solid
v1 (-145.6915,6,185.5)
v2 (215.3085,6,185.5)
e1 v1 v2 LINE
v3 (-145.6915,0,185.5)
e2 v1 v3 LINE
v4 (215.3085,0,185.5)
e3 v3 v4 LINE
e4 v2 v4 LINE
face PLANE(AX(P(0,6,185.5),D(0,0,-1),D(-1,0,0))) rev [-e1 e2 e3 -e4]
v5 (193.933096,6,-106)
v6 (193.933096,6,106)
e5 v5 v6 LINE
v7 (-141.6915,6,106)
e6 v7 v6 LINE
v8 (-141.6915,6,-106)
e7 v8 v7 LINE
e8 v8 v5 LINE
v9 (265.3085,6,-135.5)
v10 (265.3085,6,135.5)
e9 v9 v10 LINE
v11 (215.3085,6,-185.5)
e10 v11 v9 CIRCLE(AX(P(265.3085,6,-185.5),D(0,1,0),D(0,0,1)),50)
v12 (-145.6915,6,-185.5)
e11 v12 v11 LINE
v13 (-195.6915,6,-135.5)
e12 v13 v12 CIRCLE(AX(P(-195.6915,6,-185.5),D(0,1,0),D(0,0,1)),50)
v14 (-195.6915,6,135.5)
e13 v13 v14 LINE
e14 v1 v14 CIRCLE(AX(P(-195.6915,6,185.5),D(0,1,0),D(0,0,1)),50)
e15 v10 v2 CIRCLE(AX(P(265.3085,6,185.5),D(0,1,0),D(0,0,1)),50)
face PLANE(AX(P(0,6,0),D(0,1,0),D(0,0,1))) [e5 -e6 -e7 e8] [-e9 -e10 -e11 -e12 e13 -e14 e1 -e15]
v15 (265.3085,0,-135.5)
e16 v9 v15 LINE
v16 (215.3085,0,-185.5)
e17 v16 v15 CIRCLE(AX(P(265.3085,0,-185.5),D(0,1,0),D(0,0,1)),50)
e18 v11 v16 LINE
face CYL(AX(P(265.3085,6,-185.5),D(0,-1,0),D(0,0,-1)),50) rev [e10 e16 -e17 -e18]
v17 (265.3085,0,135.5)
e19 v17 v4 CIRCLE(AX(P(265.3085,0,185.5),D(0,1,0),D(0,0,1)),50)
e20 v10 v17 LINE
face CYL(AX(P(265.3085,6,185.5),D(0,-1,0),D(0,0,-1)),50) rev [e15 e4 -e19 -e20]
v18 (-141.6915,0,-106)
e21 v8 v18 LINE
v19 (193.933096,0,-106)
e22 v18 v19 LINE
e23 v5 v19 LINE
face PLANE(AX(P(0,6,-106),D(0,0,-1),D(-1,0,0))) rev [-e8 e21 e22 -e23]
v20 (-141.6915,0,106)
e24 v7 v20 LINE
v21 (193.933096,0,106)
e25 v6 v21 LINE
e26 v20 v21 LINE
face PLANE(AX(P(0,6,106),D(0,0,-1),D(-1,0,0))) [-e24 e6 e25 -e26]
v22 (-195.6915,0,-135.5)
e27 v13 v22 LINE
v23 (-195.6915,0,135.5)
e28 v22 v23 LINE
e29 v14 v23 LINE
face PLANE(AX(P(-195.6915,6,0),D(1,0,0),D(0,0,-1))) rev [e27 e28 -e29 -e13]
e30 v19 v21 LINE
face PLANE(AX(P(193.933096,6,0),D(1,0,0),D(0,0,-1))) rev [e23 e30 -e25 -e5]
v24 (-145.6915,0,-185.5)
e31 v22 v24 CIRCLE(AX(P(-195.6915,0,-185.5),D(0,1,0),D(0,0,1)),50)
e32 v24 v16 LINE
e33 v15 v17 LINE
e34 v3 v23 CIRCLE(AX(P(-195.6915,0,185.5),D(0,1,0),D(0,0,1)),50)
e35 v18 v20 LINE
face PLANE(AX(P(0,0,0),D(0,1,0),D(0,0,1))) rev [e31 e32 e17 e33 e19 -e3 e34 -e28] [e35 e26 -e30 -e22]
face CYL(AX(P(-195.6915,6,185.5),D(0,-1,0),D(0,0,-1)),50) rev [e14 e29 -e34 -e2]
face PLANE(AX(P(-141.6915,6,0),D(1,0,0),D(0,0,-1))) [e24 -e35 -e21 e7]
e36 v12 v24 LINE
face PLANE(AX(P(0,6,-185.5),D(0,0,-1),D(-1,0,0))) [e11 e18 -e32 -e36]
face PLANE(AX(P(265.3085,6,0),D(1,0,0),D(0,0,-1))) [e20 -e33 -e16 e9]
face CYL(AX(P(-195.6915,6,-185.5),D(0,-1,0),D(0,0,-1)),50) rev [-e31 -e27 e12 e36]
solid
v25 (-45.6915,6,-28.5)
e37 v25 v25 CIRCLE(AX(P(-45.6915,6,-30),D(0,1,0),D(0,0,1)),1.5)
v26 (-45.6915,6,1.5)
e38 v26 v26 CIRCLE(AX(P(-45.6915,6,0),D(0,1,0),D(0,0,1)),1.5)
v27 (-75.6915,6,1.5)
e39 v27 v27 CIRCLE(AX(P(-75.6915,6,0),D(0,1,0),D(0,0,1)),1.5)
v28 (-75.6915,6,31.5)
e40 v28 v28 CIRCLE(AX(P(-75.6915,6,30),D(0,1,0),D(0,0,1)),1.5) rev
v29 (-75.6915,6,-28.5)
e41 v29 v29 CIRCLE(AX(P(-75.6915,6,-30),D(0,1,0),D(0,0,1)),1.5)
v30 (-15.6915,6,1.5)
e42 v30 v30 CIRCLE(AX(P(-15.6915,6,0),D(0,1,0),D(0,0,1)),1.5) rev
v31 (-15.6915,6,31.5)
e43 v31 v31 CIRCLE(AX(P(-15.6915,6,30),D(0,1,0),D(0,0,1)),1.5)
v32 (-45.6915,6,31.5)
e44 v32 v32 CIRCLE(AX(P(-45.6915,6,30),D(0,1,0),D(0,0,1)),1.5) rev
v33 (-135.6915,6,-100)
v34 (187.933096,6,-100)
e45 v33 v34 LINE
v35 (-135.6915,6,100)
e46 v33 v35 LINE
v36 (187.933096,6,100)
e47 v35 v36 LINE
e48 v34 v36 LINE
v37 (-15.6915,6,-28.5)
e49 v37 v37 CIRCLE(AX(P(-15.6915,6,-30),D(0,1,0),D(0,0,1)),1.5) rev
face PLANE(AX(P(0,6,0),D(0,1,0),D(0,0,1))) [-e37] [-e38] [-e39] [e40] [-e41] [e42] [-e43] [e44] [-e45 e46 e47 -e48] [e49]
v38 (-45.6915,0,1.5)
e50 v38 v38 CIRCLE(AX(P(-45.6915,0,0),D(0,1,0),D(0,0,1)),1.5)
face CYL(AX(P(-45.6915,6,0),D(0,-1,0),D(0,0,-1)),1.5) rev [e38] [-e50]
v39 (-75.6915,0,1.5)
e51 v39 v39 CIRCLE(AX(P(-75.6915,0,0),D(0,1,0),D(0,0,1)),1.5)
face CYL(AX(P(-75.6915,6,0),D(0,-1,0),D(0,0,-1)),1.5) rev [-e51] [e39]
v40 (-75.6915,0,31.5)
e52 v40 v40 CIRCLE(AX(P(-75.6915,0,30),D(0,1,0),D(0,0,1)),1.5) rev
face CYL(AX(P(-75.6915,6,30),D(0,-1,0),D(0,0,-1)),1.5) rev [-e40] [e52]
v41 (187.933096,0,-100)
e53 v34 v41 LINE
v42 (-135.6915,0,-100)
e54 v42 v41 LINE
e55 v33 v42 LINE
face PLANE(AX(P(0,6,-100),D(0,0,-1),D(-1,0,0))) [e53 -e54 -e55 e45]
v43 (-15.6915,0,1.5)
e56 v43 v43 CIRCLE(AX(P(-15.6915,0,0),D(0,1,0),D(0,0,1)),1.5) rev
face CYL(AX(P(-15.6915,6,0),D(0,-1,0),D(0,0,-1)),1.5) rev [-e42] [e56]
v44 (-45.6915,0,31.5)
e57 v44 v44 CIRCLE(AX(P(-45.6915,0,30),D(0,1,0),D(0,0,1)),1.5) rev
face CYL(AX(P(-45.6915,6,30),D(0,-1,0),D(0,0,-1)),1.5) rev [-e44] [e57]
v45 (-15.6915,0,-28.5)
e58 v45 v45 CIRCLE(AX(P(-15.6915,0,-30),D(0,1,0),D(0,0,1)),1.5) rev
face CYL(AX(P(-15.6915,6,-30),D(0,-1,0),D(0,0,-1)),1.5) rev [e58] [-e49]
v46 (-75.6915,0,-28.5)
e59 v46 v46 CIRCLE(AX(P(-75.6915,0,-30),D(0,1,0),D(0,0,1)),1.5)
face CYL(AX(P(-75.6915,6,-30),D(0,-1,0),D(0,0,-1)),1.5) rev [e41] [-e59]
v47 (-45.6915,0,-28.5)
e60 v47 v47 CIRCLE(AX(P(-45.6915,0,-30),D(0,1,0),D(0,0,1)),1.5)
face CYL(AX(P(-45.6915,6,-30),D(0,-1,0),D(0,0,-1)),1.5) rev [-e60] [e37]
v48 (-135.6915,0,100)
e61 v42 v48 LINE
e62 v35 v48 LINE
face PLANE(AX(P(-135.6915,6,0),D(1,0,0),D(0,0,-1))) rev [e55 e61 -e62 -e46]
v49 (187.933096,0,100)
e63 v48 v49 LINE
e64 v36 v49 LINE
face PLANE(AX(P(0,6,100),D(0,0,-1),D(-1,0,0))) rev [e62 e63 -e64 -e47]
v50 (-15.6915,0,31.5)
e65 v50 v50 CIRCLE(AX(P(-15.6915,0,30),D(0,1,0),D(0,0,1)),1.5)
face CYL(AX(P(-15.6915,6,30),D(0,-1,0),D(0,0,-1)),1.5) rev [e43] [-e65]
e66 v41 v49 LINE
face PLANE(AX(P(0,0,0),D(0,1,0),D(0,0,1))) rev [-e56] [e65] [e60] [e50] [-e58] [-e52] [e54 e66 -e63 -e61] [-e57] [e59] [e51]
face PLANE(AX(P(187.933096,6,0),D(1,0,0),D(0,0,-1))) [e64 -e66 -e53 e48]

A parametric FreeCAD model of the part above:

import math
import FreeCAD as App
import Part
import Sketcher


def add_polygon(sketch, points):
    """Adds a closed chain of lines whose ends are joined by coincident constraints."""
    first, n = sketch.GeometryCount, len(points)
    for a, b in zip(points, points[1:] + points[:1]):
        sketch.addGeometry(Part.LineSegment(App.Vector(*a, 0), App.Vector(*b, 0)), False)
    for i in range(n):
        sketch.addConstraint(Sketcher.Constraint("Coincident", first + i, 2, first + (i + 1) % n, 1))

doc = App.newDocument("Part")
body = doc.addObject("PartDesign::Body", "Body")

# Sketch on XZ plane
sketch1 = body.newObject("Sketcher::SketchObject", "Sketch")
sketch1.AttachmentSupport = (doc.getObject("XZ_Plane"), [""])
sketch1.MapMode = "FlatFace"
sketch1.addGeometry(Part.ArcOfCircle(Part.Circle(App.Vector(-195.6915, 185.5, 0), App.Vector(0, 0, 1), 50), math.radians(-90), math.radians(0)), False)  # 0
sketch1.addGeometry(Part.LineSegment(App.Vector(-145.6915, 185.5, 0), App.Vector(215.3085, 185.5, 0)), False)  # 1
sketch1.addGeometry(Part.ArcOfCircle(Part.Circle(App.Vector(265.3085, 185.5, 0), App.Vector(0, 0, 1), 50), math.radians(-180), math.radians(-90)), False)  # 2
sketch1.addGeometry(Part.LineSegment(App.Vector(265.3085, 135.5, 0), App.Vector(265.3085, -135.5, 0)), False)  # 3
sketch1.addGeometry(Part.ArcOfCircle(Part.Circle(App.Vector(265.3085, -185.5, 0), App.Vector(0, 0, 1), 50), math.radians(90), math.radians(180)), False)  # 4
sketch1.addGeometry(Part.LineSegment(App.Vector(215.3085, -185.5, 0), App.Vector(-145.6915, -185.5, 0)), False)  # 5
sketch1.addGeometry(Part.ArcOfCircle(Part.Circle(App.Vector(-195.6915, -185.5, 0), App.Vector(0, 0, 1), 50), math.radians(0), math.radians(90)), False)  # 6
sketch1.addGeometry(Part.LineSegment(App.Vector(-195.6915, -135.5, 0), App.Vector(-195.6915, 135.5, 0)), False)  # 7
add_polygon(sketch1, [(-141.6915, 106), (-141.6915, -106), (193.933096, -106), (193.933096, 106)])  # lines 8-11
sketch1.addConstraint([
    Sketcher.Constraint("Coincident", 0, 2, 1, 1),
    Sketcher.Constraint("Coincident", 1, 2, 2, 1),
    Sketcher.Constraint("Coincident", 2, 2, 3, 1),
    Sketcher.Constraint("Coincident", 3, 2, 4, 1),
    Sketcher.Constraint("Coincident", 4, 2, 5, 1),
    Sketcher.Constraint("Coincident", 5, 2, 6, 1),
    Sketcher.Constraint("Coincident", 6, 2, 7, 1),
    Sketcher.Constraint("Coincident", 7, 2, 0, 1),
    Sketcher.Constraint("Horizontal", 1),
    Sketcher.Constraint("Vertical", 3),
    Sketcher.Constraint("Horizontal", 5),
    Sketcher.Constraint("Vertical", 7),
    Sketcher.Constraint("Vertical", 8),
    Sketcher.Constraint("Horizontal", 9),
    Sketcher.Constraint("Vertical", 10),
    Sketcher.Constraint("Horizontal", 11),
    Sketcher.Constraint("Equal", 0, 2),
    Sketcher.Constraint("Equal", 2, 4),
    Sketcher.Constraint("Equal", 4, 6),
    Sketcher.Constraint("Symmetric", 2, 3, 4, 3, -1),
    Sketcher.Constraint("Symmetric", 0, 3, 6, 3, -1),
    Sketcher.Constraint("Horizontal", 0, 3, 2, 3),
    Sketcher.Constraint("Horizontal", 2, 3, 0, 2),
    Sketcher.Constraint("Horizontal", 6, 3, 4, 2),
    Sketcher.Constraint("Vertical", 4, 3, 2, 2),
    Sketcher.Constraint("Vertical", 0, 3, 6, 2),
    Sketcher.Constraint("Radius", 0, 50.0),
    Sketcher.Constraint("DistanceX", 1, 1, 1, 2, 361.0),
    Sketcher.Constraint("DistanceY", 3, 2, 3, 1, 271.0),
    Sketcher.Constraint("DistanceY", 8, 2, 8, 1, 212.0),
    Sketcher.Constraint("DistanceY", 8, 2, -1, 1, 106.0),
    Sketcher.Constraint("DistanceX", 6, 2, 8, 2, 54.0),
    Sketcher.Constraint("DistanceX", 0, 3, -1, 1, 195.6915),
    Sketcher.Constraint("DistanceX", 9, 1, 9, 2, 335.624595),
])
pad1 = body.newObject("PartDesign::Pad", "Pad")
pad1.Profile = sketch1
pad1.Length = 6
pad1.Reversed = True
body2 = doc.addObject("PartDesign::Body", "Body001")

# Sketch on XZ plane
sketch2 = body2.newObject("Sketcher::SketchObject", "Sketch001")
sketch2.AttachmentSupport = (doc.getObject("XZ_Plane001"), [""])
sketch2.MapMode = "FlatFace"
add_polygon(sketch2, [(-135.6915, -100), (-135.6915, 100), (187.933096, 100), (187.933096, -100)])  # lines 0-3
sketch2.addGeometry(Part.Circle(App.Vector(-75.6915, 30, 0), App.Vector(0, 0, 1), 1.5), False)  # 4
sketch2.addGeometry(Part.Circle(App.Vector(-45.6915, 30, 0), App.Vector(0, 0, 1), 1.5), False)  # 5
sketch2.addGeometry(Part.Circle(App.Vector(-15.6915, 30, 0), App.Vector(0, 0, 1), 1.5), False)  # 6
sketch2.addGeometry(Part.Circle(App.Vector(-75.6915, 0, 0), App.Vector(0, 0, 1), 1.5), False)  # 7
sketch2.addGeometry(Part.Circle(App.Vector(-75.6915, -30, 0), App.Vector(0, 0, 1), 1.5), False)  # 8
sketch2.addGeometry(Part.Circle(App.Vector(-45.6915, 0, 0), App.Vector(0, 0, 1), 1.5), False)  # 9
sketch2.addGeometry(Part.Circle(App.Vector(-15.6915, 0, 0), App.Vector(0, 0, 1), 1.5), False)  # 10
sketch2.addGeometry(Part.Circle(App.Vector(-45.6915, -30, 0), App.Vector(0, 0, 1), 1.5), False)  # 11
sketch2.addGeometry(Part.Circle(App.Vector(-15.6915, -30, 0), App.Vector(0, 0, 1), 1.5), False)  # 12
sketch2.addConstraint([
    Sketcher.Constraint("Vertical", 0),
    Sketcher.Constraint("Horizontal", 1),
    Sketcher.Constraint("Vertical", 2),
    Sketcher.Constraint("Horizontal", 3),
    Sketcher.Constraint("Equal", 4, 5),
    Sketcher.Constraint("Equal", 5, 6),
    Sketcher.Constraint("Equal", 6, 7),
    Sketcher.Constraint("Equal", 7, 8),
    Sketcher.Constraint("Equal", 8, 9),
    Sketcher.Constraint("Equal", 9, 10),
    Sketcher.Constraint("Equal", 10, 11),
    Sketcher.Constraint("Equal", 11, 12),
    Sketcher.Constraint("Symmetric", 4, 3, 8, 3, -1),
    Sketcher.Constraint("Symmetric", 5, 3, 11, 3, -1),
    Sketcher.Constraint("Symmetric", 6, 3, 12, 3, -1),
    Sketcher.Constraint("PointOnObject", 7, 3, -1),
    Sketcher.Constraint("PointOnObject", 9, 3, -1),
    Sketcher.Constraint("PointOnObject", 10, 3, -1),
    Sketcher.Constraint("Horizontal", 4, 3, 5, 3),
    Sketcher.Constraint("Horizontal", 5, 3, 6, 3),
    Sketcher.Constraint("Vertical", 4, 3, 7, 3),
    Sketcher.Constraint("Vertical", 5, 3, 9, 3),
    Sketcher.Constraint("Vertical", 6, 3, 10, 3),
    Sketcher.Constraint("Diameter", 4, 3.0),
    Sketcher.Constraint("DistanceY", 0, 1, 0, 2, 200.0),
    Sketcher.Constraint("DistanceY", -1, 1, 4, 3, 30.0),
    Sketcher.Constraint("DistanceY", -1, 1, 0, 2, 100.0),
    Sketcher.Constraint("DistanceX", 4, 3, 5, 3, 30.0),
    Sketcher.Constraint("DistanceX", 5, 3, 6, 3, 30.0),
    Sketcher.Constraint("DistanceX", 0, 2, 4, 3, 60.0),
    Sketcher.Constraint("DistanceX", 4, 3, -1, 1, 75.6915),
    Sketcher.Constraint("DistanceX", 1, 1, 1, 2, 323.624595),
])
pad2 = body2.newObject("PartDesign::Pad", "Pad001")
pad2.Profile = sketch2
pad2.Length = 6
pad2.Reversed = True

doc.recompute()
